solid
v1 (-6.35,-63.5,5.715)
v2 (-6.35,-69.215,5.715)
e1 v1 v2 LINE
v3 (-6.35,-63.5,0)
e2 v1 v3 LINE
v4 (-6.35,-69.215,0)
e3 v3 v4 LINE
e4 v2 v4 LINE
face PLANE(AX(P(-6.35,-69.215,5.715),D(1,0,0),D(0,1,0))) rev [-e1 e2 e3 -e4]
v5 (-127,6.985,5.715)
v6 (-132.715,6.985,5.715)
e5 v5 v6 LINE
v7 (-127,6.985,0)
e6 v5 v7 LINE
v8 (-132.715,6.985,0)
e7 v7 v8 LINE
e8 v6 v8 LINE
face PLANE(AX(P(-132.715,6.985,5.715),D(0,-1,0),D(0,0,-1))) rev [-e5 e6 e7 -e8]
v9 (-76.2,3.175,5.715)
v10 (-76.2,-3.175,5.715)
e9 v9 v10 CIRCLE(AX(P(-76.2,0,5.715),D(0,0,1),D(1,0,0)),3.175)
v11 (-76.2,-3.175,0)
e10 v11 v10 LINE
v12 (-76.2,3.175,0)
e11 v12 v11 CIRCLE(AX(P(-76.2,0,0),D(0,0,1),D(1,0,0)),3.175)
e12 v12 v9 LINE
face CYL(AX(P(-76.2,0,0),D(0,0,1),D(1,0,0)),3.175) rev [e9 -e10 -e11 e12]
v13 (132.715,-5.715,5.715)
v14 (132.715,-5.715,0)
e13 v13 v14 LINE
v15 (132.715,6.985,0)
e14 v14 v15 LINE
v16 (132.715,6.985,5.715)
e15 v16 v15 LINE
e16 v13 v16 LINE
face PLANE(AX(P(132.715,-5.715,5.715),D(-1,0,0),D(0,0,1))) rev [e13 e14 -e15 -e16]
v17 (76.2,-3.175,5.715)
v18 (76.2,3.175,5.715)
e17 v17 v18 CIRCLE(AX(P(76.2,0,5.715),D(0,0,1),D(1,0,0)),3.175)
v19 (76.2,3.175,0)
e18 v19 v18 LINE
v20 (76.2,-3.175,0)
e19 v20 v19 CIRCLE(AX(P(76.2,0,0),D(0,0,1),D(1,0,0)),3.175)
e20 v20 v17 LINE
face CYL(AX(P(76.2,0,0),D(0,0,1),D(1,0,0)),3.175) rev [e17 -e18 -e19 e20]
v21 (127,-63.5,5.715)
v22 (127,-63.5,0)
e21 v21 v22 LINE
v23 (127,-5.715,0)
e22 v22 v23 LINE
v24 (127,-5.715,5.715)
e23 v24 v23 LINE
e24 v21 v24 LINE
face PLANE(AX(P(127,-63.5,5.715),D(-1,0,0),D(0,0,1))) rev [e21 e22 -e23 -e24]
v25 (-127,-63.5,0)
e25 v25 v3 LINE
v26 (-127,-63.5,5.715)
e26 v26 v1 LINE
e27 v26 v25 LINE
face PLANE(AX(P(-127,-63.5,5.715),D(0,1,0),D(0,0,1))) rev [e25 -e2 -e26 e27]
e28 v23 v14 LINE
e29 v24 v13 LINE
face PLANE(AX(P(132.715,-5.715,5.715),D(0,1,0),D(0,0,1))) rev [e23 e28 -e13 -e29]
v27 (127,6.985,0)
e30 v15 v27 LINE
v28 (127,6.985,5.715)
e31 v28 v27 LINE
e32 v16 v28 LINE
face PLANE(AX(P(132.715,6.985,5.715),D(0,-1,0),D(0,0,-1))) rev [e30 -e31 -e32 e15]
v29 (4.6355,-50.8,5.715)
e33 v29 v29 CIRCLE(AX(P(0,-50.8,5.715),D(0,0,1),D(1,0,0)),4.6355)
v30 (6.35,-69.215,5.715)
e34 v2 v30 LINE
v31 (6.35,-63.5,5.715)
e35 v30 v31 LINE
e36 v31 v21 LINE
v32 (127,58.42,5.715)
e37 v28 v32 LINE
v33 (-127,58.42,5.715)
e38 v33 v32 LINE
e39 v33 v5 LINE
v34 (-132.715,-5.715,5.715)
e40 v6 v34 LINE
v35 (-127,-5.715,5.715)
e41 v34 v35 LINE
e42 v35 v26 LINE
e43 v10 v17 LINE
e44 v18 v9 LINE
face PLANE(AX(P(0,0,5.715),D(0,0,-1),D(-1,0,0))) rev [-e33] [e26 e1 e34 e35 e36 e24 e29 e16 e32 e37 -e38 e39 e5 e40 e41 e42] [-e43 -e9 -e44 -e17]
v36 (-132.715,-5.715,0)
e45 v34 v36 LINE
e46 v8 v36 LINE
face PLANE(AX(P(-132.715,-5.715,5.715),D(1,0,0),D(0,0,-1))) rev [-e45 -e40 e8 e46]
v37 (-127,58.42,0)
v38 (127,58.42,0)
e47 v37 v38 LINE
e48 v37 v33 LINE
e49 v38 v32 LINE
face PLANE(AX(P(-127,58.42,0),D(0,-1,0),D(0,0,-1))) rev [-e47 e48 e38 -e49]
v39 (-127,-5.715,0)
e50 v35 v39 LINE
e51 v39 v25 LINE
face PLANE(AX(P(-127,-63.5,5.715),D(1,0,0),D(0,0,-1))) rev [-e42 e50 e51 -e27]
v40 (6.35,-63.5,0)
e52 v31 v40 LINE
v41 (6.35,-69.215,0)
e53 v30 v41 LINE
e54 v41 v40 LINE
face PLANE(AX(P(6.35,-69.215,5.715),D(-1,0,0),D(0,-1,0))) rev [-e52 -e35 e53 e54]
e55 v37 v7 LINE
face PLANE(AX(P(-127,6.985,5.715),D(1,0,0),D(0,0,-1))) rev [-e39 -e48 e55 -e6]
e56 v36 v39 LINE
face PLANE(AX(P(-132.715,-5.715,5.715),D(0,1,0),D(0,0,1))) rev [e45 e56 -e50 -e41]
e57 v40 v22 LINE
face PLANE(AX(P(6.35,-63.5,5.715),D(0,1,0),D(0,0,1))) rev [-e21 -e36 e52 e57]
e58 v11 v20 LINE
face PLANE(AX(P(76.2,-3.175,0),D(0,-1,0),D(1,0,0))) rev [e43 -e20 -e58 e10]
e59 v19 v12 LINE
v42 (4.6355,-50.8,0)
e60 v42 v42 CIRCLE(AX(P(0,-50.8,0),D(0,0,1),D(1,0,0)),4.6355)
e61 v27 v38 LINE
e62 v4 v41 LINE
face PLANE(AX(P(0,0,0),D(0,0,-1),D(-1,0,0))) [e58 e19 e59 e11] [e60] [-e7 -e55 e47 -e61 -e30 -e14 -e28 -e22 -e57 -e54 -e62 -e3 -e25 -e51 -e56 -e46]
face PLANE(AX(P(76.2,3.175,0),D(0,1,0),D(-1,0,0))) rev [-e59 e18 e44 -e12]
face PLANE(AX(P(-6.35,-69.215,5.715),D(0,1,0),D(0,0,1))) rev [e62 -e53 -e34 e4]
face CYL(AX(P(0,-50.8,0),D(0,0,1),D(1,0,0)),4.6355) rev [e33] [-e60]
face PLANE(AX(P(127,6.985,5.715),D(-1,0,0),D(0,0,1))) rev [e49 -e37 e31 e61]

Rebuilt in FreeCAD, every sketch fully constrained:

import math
import FreeCAD as App
import Part
import Sketcher
from FreeCAD import Vector
Q = App.Units.Quantity


def add_polygon(sketch, points):
    """Adds a closed chain of lines whose ends are joined by coincident constraints."""
    first, n = sketch.GeometryCount, len(points)
    for a, b in zip(points, points[1:] + points[:1]):
        sketch.addGeometry(Part.LineSegment(App.Vector(*a, 0), App.Vector(*b, 0)), False)
    for i in range(n):
        sketch.addConstraint(Sketcher.Constraint("Coincident", first + i, 2, first + (i + 1) % n, 1))

doc = App.newDocument("Part")
params = doc.addObject("Spreadsheet::Sheet", "Params")
for row, (alias, value) in enumerate([
    ("sketch1_width", "10 in"),
    ("sketch1_width2", "0.5 in"),
    ("sketch1_width3", "0.225 in"),
    ("pad1_length", "0.225 in"),
    ("sketch2_width", "6 in"),
    ("sketch2_radius", "0.125 in"),
    ("sketch3_diameter", "0.365 in"),
    ("sketch4_width", "10 in"),
    ("sketch4_height", "0.2 in"),
], start=1):
    params.set(f"A{row}", alias)
    params.set(f"B{row}", "=" + value)
    params.setAlias(f"B{row}", alias)

body = doc.addObject("PartDesign::Body", "Body")

sketch1 = body.newObject("Sketcher::SketchObject", "Sketch")
sketch1.AttachmentSupport = (doc.getObject("XY_Plane"), [""])
sketch1.MapMode = "FlatFace"
add_polygon(sketch1, [(6.35, -63.5), (127, -63.5), (127, -5.715), (132.715, -5.715), (132.715, 6.985), (127, 6.985), (127, 63.5), (-127, 63.5), (-127, 6.985), (-132.715, 6.985), (-132.715, -5.715), (-127, -5.715), (-127, -63.5), (-6.35, -63.5), (-6.35, -69.215), (6.35, -69.215)])
sketch1.addConstraint([
    Sketcher.Constraint("Horizontal", 0),
    Sketcher.Constraint("Vertical", 1),
    Sketcher.Constraint("Horizontal", 2),
    Sketcher.Constraint("Vertical", 3),
    Sketcher.Constraint("Horizontal", 4),
    Sketcher.Constraint("Vertical", 5),
    Sketcher.Constraint("Horizontal", 6),
    Sketcher.Constraint("Vertical", 7),
    Sketcher.Constraint("Horizontal", 8),
    Sketcher.Constraint("Vertical", 9),
    Sketcher.Constraint("Horizontal", 10),
    Sketcher.Constraint("Vertical", 11),
    Sketcher.Constraint("Horizontal", 12),
    Sketcher.Constraint("Vertical", 13),
    Sketcher.Constraint("Horizontal", 14),
    Sketcher.Constraint("Vertical", 15),
    Sketcher.Constraint("Symmetric", 0, 2, 6, 2, -1, 1),
    Sketcher.Constraint("Symmetric", 5, 2, 11, 2, -1, 1),
    Sketcher.Constraint("Symmetric", 4, 2, 7, 2, -2),
    Sketcher.Constraint("Symmetric", 2, 2, 9, 2, -2),
    Sketcher.Constraint("Equal", 0, 12),
    Sketcher.Constraint("Equal", 14, 3),
    Sketcher.Constraint("Equal", 10, 13),
    Sketcher.Constraint("DistanceX", 6, 2, 6, 1, Q("10 in")),
    Sketcher.Constraint("DistanceX", 14, 1, 14, 2, Q("0.5 in")),
    Sketcher.Constraint("DistanceY", 0, 2, 5, 2, Q("5 in")),
    Sketcher.Constraint("DistanceY", 13, 2, 10, 2, Q("2.5 in")),
    Sketcher.Constraint("DistanceX", 2, 1, 2, 2, Q("0.225 in")),
])
sketch1.setExpression("Constraints[39]", "Params.sketch1_width")
sketch1.setExpression("Constraints[40]", "Params.sketch1_width2")
sketch1.setExpression("Constraints[43]", "Params.sketch1_width3")
pad1 = body.newObject("PartDesign::Pad", "Pad")
pad1.Profile = sketch1
pad1.setExpression("Length", "Params.pad1_length")

sketch2 = body.newObject("Sketcher::SketchObject", "Sketch001")
sketch2.AttachmentSupport = (doc.getObject("XY_Plane"), [""])
sketch2.MapMode = "FlatFace"
sketch2.AttachmentOffset = App.Placement(Vector(0, 0, 0.225 * 25.4), App.Rotation())
sketch2.addGeometry([
    Part.LineSegment(Vector(-76.2, -3.175, 0), Vector(76.2, -3.175, 0)),
    Part.ArcOfCircle(Part.Circle(Vector(76.2, 0, 0), Vector(0, 0, 1), 3.175), math.radians(-90), math.radians(90)),
    Part.LineSegment(Vector(76.2, 3.175, 0), Vector(-76.2, 3.175, 0)),
    Part.ArcOfCircle(Part.Circle(Vector(-76.2, 0, 0), Vector(0, 0, 1), 3.175), math.radians(90), math.radians(270)),
], False)
sketch2.addConstraint([
    Sketcher.Constraint("Tangent", 0, 2, 1, 1),
    Sketcher.Constraint("Tangent", 1, 2, 2, 1),
    Sketcher.Constraint("Tangent", 2, 2, 3, 1),
    Sketcher.Constraint("Tangent", 3, 2, 0, 1),
    Sketcher.Constraint("Horizontal", 0),
    Sketcher.Constraint("Horizontal", 2),
    Sketcher.Constraint("Symmetric", 1, 3, 3, 3, -1, 1),
    Sketcher.Constraint("DistanceX", 0, 1, 0, 2, Q("6 in")),
    Sketcher.Constraint("Radius", 1, Q("0.125 in")),
])
sketch2.setExpression("Constraints[7]", "Params.sketch2_width")
sketch2.setExpression("Constraints[8]", "Params.sketch2_radius")
pocket1 = body.newObject("PartDesign::Pocket", "Pocket")
pocket1.Profile = sketch2
pocket1.Type = "ThroughAll"

sketch3 = body.newObject("Sketcher::SketchObject", "Sketch002")
sketch3.AttachmentSupport = (doc.getObject("XY_Plane"), [""])
sketch3.MapMode = "FlatFace"
sketch3.AttachmentOffset = App.Placement(Vector(0, 0, 0.225 * 25.4), App.Rotation())
sketch3.addGeometry(Part.Circle(Vector(0, -50.8, 0), Vector(0, 0, 1), 4.6355), False)
sketch3.addConstraint([
    Sketcher.Constraint("PointOnObject", 0, 3, -2),
    Sketcher.Constraint("Diameter", 0, Q("0.365 in")),
    Sketcher.Constraint("DistanceY", 0, 3, -1, 1, Q("2 in")),
])
sketch3.setExpression("Constraints[1]", "Params.sketch3_diameter")
pocket2 = body.newObject("PartDesign::Pocket", "Pocket001")
pocket2.Profile = sketch3
pocket2.Type = "ThroughAll"
pocket2.Midplane = True

sketch4 = body.newObject("Sketcher::SketchObject", "Sketch003")
sketch4.AttachmentSupport = (doc.getObject("XY_Plane"), [""])
sketch4.MapMode = "FlatFace"
sketch4.AttachmentOffset = App.Placement(Vector(0, 0, 0.225 * 25.4), App.Rotation())
add_polygon(sketch4, [(-127, 63.5), (-127, 58.42), (127, 58.42), (127, 63.5)])
sketch4.addConstraint([
    Sketcher.Constraint("Vertical", 0),
    Sketcher.Constraint("Horizontal", 1),
    Sketcher.Constraint("Vertical", 2),
    Sketcher.Constraint("Horizontal", 3),
    Sketcher.Constraint("DistanceX", 1, 1, 1, 2, Q("10 in")),
    Sketcher.Constraint("DistanceY", 0, 2, 0, 1, Q("0.2 in")),
    Sketcher.Constraint("DistanceX", 0, 2, -1, 1, Q("5 in")),
    Sketcher.Constraint("DistanceY", -1, 1, 0, 2, Q("2.3 in")),
])
sketch4.setExpression("Constraints[8]", "Params.sketch4_width")
sketch4.setExpression("Constraints[9]", "Params.sketch4_height")
pocket3 = body.newObject("PartDesign::Pocket", "Pocket002")
pocket3.Profile = sketch4
pocket3.Type = "ThroughAll"

doc.recompute()
